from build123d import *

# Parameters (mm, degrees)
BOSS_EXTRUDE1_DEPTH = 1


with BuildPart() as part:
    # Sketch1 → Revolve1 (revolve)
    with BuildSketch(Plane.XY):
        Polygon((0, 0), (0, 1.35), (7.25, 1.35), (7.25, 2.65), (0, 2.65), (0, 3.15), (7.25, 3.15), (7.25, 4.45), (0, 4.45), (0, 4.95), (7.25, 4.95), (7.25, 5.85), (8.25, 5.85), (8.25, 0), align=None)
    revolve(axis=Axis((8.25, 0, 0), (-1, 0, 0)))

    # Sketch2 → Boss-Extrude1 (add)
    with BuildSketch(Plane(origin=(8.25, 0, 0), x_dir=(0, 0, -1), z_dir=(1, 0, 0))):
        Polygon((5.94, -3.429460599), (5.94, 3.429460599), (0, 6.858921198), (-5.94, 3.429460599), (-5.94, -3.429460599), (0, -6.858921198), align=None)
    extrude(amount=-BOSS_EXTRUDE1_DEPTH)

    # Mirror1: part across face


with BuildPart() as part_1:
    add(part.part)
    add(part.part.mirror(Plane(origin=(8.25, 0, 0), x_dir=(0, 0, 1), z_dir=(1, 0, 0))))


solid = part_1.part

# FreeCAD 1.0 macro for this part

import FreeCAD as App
import Part
import Sketcher
from FreeCAD import Vector
Q = App.Units.Quantity


def add_polygon(sketch, points):
    """Adds a closed chain of lines whose ends are joined by coincident constraints."""
    first, n = sketch.GeometryCount, len(points)
    for a, b in zip(points, points[1:] + points[:1]):
        sketch.addGeometry(Part.LineSegment(App.Vector(*a, 0), App.Vector(*b, 0)), False)
    for i in range(n):
        sketch.addConstraint(Sketcher.Constraint("Coincident", first + i, 2, first + (i + 1) % n, 1))

doc = App.newDocument("Part")
params = doc.addObject("Spreadsheet::Sheet", "Params")
for row, (alias, value) in enumerate([
    ("sketch1_width", "1 mm"),
    ("sketch1_height", "0.9 mm"),
    ("sketch1_height2", "0.5 mm"),
    ("sketch1_height3", "1.3 mm"),
    ("sketch1_width2", "8.25 mm"),
    ("revolution_angle", "360 deg"),
    ("pad1_length", "1 mm"),
], start=1):
    params.set(f"A{row}", alias)
    params.set(f"B{row}", "=" + value)
    params.setAlias(f"B{row}", alias)

body = doc.addObject("PartDesign::Body", "Body")

sketch1 = doc.addObject("Sketcher::SketchObject", "Sketch")
body.addObject(sketch1)
sketch1.AttachmentSupport = (doc.XY_Plane, [""])
sketch1.MapMode = "FlatFace"
add_polygon(sketch1, [(0, 1.4), (0, 0), (8.2, 0), (8.2, 5.8), (7.2, 5.8), (7.2, 5), (0, 5), (0, 4.5), (7.2, 4.5), (7.2, 3.1), (0, 3.1), (0, 2.6), (7.2, 2.6), (7.2, 1.4)])
sketch1.addConstraint([
    Sketcher.Constraint("Vertical", 0),
    Sketcher.Constraint("Horizontal", 1),
    Sketcher.Constraint("Vertical", 2),
    Sketcher.Constraint("Horizontal", 3),
    Sketcher.Constraint("Vertical", 4),
    Sketcher.Constraint("Horizontal", 5),
    Sketcher.Constraint("Vertical", 6),
    Sketcher.Constraint("Horizontal", 7),
    Sketcher.Constraint("Vertical", 8),
    Sketcher.Constraint("Horizontal", 9),
    Sketcher.Constraint("Vertical", 10),
    Sketcher.Constraint("Horizontal", 11),
    Sketcher.Constraint("Vertical", 12),
    Sketcher.Constraint("Horizontal", 13),
    Sketcher.Constraint("Coincident", 0, 2, -1, 1),
    Sketcher.Constraint("PointOnObject", 5, 2, -2),
    Sketcher.Constraint("PointOnObject", 9, 2, -2),
    Sketcher.Constraint("Vertical", 4, 2, 7, 2),
    Sketcher.Constraint("Vertical", 8, 2, 11, 2),
    Sketcher.Constraint("Equal", 6, 10),
    Sketcher.Constraint("Equal", 8, 12),
    Sketcher.Constraint("DistanceX", 3, 2, 3, 1, 1.0),
    Sketcher.Constraint("DistanceY", 4, 2, 4, 1, 0.9),
    Sketcher.Constraint("DistanceY", 6, 2, 6, 1, 0.5),
    Sketcher.Constraint("DistanceY", 8, 2, 8, 1, 1.3),
    Sketcher.Constraint("DistanceX", 1, 1, 1, 2, 8.25),
    Sketcher.Constraint("DistanceY", 0, 2, 0, 1, 1.35),
])
sketch1.setExpression("Constraints[35]", "Params.sketch1_width")
sketch1.setExpression("Constraints[36]", "Params.sketch1_height")
sketch1.setExpression("Constraints[37]", "Params.sketch1_height2")
sketch1.setExpression("Constraints[38]", "Params.sketch1_height3")
sketch1.setExpression("Constraints[39]", "Params.sketch1_width2")
revolution = doc.addObject("PartDesign::Revolution", "Revolution")
body.addObject(revolution)
revolution.Profile = sketch1
revolution.ReferenceAxis = (sketch1, ["H_Axis"])
revolution.setExpression("Angle", "Params.revolution_angle")

sketch2 = doc.addObject("Sketcher::SketchObject", "Sketch001")
body.addObject(sketch2)
sketch2.AttachmentSupport = (doc.YZ_Plane, [""])
sketch2.MapMode = "FlatFace"
sketch2.AttachmentOffset = App.Placement(Vector(0, 0, 8.25), App.Rotation())
add_polygon(sketch2, [(-3, -6), (3, -6), (7, 0), (3, 6), (-3, 6), (-7, 0)])
sketch2.addConstraint([
    Sketcher.Constraint("Horizontal", 0),
    Sketcher.Constraint("Horizontal", 3),
    Sketcher.Constraint("Symmetric", 0, 2, 3, 2, -1, 1),
    Sketcher.Constraint("Symmetric", 1, 2, 4, 2, -1, 1),
    Sketcher.Constraint("PointOnObject", 1, 2, -1),
    Sketcher.Constraint("Parallel", 2, 5),
    Sketcher.Constraint("Vertical", 0, 2, 2, 2),
    Sketcher.Constraint("Angle", 1, Q("60 deg")),
    Sketcher.Constraint("DistanceY", 0, 2, -1, 1, 5.94),
    Sketcher.Constraint("DistanceX", 0, 1, 0, 2, 6.858921),
])
pad1 = doc.addObject("PartDesign::Pad", "Pad")
body.addObject(pad1)
pad1.Profile = sketch2
pad1.setExpression("Length", "Params.pad1_length")
pad1.Reversed = True
body2 = doc.addObject("PartDesign::Body", "Body001")
doc.recompute()

body2.BaseFeature = body
doc.recompute()

mirroring = doc.addObject("Part::Mirroring", "Mirroring")
mirroring.Source = body
mirroring.Base = Vector(8.25, 0, 0)
mirroring.Normal = Vector(1, 0, 0)
body3 = doc.addObject("PartDesign::Body", "Body002")
body3.BaseFeature = mirroring
boolean = doc.addObject("PartDesign::Boolean", "Boolean")
body2.addObject(boolean)
boolean.Type = "Fuse"
boolean.addObjects([body3])
doc.recompute()
mirroring.Visibility = False

doc.recompute()
